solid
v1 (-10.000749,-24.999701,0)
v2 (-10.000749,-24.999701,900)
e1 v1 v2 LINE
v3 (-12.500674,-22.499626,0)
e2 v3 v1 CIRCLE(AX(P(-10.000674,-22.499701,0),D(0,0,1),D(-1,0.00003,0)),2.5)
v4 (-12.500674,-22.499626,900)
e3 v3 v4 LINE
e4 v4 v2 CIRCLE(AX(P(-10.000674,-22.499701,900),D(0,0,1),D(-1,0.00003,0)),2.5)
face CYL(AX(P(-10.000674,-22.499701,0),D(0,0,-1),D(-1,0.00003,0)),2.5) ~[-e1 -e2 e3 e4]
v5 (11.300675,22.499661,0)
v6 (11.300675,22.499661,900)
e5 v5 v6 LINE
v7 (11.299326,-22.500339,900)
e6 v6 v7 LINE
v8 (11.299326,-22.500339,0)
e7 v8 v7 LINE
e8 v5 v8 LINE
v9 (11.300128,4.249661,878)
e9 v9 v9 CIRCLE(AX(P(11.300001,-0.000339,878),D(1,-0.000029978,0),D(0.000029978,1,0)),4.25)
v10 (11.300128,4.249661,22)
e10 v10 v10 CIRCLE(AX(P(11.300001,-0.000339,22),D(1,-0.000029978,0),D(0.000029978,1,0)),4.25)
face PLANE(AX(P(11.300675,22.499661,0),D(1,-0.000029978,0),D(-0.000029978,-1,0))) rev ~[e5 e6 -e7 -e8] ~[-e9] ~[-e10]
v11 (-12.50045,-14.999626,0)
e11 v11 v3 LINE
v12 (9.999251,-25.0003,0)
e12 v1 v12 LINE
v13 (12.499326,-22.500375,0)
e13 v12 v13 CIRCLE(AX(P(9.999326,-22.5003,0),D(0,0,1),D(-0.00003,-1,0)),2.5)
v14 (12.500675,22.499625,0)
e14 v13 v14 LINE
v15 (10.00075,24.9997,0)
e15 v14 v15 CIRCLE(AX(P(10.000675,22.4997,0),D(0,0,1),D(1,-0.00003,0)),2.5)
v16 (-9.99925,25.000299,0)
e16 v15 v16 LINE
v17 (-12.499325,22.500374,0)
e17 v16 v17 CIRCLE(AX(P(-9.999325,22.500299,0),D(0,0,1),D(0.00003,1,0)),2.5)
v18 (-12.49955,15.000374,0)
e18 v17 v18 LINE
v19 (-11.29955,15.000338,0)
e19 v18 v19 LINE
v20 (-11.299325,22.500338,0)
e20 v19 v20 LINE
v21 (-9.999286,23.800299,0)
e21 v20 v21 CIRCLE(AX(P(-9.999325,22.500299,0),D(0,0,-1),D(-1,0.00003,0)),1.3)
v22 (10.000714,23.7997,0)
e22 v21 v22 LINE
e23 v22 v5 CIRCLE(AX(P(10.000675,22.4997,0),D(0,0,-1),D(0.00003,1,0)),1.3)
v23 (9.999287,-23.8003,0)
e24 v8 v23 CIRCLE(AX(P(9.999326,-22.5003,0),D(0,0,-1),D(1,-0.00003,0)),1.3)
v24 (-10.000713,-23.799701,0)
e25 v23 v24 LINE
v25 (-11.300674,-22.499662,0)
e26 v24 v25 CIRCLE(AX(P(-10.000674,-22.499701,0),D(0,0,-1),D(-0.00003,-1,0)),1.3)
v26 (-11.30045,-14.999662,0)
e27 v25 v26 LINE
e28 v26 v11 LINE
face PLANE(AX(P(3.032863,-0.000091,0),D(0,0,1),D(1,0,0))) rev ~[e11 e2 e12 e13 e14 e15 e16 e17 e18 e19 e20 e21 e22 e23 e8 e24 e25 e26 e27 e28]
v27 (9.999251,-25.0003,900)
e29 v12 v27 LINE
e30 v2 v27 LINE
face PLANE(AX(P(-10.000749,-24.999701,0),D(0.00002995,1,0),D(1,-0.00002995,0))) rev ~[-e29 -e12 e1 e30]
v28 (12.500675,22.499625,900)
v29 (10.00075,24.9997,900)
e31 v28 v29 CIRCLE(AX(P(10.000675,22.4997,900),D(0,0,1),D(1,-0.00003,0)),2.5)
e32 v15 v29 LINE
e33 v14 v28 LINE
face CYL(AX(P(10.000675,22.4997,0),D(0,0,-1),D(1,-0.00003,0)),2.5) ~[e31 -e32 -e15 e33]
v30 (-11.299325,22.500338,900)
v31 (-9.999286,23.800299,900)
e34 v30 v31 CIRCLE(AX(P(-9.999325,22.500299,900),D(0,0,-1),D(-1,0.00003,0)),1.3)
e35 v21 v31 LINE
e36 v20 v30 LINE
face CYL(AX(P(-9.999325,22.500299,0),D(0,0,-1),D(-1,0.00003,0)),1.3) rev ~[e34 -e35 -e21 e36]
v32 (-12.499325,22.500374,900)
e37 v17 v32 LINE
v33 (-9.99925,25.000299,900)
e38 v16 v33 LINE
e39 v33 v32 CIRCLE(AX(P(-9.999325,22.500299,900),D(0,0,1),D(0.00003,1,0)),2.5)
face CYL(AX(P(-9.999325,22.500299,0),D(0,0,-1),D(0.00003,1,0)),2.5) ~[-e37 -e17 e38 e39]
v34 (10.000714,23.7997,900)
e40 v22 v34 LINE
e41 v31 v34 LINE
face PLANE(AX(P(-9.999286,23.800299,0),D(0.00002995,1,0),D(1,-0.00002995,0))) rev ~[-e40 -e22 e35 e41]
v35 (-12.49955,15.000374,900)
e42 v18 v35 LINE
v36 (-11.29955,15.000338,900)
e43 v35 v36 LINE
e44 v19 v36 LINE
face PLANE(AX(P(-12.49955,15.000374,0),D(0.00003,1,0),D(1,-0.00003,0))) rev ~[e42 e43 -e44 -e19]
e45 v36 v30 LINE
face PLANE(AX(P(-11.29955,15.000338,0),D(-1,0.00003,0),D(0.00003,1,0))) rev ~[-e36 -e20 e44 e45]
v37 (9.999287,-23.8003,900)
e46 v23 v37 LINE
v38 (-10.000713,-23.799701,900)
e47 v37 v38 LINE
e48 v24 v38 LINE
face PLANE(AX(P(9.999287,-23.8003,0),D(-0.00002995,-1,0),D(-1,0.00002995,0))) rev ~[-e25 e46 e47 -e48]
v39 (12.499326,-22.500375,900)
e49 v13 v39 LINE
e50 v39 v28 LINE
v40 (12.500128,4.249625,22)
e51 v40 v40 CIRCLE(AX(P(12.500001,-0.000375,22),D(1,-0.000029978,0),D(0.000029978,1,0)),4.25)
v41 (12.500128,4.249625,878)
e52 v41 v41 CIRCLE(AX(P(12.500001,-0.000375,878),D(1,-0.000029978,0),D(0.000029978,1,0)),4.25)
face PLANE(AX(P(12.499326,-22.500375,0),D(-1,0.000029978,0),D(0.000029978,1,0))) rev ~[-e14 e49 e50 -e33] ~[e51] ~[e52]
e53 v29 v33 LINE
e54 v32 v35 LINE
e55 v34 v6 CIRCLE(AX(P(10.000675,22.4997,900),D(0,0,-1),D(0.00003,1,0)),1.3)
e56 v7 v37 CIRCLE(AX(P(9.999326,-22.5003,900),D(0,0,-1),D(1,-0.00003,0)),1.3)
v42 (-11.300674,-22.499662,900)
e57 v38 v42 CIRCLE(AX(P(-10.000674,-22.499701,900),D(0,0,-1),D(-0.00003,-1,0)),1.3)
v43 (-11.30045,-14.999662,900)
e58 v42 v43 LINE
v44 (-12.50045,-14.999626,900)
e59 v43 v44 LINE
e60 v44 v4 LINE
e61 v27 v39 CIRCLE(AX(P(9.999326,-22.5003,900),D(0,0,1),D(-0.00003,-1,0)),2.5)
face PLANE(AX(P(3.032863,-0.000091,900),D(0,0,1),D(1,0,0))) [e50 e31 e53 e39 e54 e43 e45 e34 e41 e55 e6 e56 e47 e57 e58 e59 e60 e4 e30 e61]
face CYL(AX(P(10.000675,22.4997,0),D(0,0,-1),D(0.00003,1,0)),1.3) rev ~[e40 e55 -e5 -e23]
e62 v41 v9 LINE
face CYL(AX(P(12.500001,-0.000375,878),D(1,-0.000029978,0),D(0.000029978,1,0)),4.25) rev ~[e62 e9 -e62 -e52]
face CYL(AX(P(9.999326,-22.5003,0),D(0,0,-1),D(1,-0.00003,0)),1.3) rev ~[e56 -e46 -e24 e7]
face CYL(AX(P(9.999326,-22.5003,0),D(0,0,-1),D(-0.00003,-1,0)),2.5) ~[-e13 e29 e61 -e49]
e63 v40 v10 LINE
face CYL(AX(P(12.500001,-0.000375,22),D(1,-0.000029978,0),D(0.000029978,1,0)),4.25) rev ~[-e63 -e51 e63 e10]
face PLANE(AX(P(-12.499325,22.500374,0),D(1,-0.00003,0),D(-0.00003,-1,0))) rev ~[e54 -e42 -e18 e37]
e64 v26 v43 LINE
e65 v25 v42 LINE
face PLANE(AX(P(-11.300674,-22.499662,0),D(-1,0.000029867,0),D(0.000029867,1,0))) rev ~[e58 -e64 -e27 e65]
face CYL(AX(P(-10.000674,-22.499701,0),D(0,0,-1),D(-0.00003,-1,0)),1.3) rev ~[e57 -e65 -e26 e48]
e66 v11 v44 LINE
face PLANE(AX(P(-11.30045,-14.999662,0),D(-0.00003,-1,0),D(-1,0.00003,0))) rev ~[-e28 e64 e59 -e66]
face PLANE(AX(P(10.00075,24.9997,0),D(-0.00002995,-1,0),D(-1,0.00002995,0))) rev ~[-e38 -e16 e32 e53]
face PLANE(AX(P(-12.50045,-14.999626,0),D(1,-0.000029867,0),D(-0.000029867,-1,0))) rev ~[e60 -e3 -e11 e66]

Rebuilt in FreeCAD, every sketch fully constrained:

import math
import FreeCAD as App
import Part
import Sketcher

doc = App.newDocument("Part")
body = doc.addObject("PartDesign::Body", "Body")

# Sketch on XY plane
sketch1 = doc.addObject("Sketcher::SketchObject", "Sketch")
body.addObject(sketch1)
sketch1.AttachmentSupport = (doc.XY_Plane, [""])
sketch1.MapMode = "FlatFace"
sketch1.addGeometry([
    Part.ArcOfCircle(Part.Circle(App.Vector(10.000675, 22.4997, 0), App.Vector(0, 0, 1), 2.5), math.radians(-0.001719), math.radians(89.998281)),  # 0
    Part.LineSegment(App.Vector(10.00075, 24.9997, 0), App.Vector(-9.99925, 25.000299, 0)),  # 1
    Part.ArcOfCircle(Part.Circle(App.Vector(-9.999325, 22.500299, 0), App.Vector(0, 0, 1), 2.5), math.radians(89.998281), math.radians(179.998281)),  # 2
    Part.LineSegment(App.Vector(-12.499325, 22.500374, 0), App.Vector(-12.49955, 15.000374, 0)),  # 3
    Part.LineSegment(App.Vector(-12.49955, 15.000374, 0), App.Vector(-11.29955, 15.000338, 0)),  # 4
    Part.LineSegment(App.Vector(-11.29955, 15.000338, 0), App.Vector(-11.299325, 22.500338, 0)),  # 5
    Part.ArcOfCircle(Part.Circle(App.Vector(-9.999325, 22.500299, 0), App.Vector(0, 0, 1), 1.3), math.radians(89.998281), math.radians(179.998281)),  # 6
    Part.LineSegment(App.Vector(-9.999286, 23.800299, 0), App.Vector(10.000714, 23.7997, 0)),  # 7
    Part.ArcOfCircle(Part.Circle(App.Vector(10.000675, 22.4997, 0), App.Vector(0, 0, 1), 1.3), math.radians(-0.001719), math.radians(89.998281)),  # 8
    Part.LineSegment(App.Vector(11.300675, 22.499661, 0), App.Vector(11.299326, -22.500339, 0)),  # 9
    Part.ArcOfCircle(Part.Circle(App.Vector(9.999326, -22.5003, 0), App.Vector(0, 0, 1), 1.3), math.radians(-90.001719), math.radians(-0.001719)),  # 10
    Part.LineSegment(App.Vector(9.999287, -23.8003, 0), App.Vector(-10.000713, -23.799701, 0)),  # 11
    Part.ArcOfCircle(Part.Circle(App.Vector(-10.000674, -22.499701, 0), App.Vector(0, 0, 1), 1.3), math.radians(179.998281), math.radians(269.998281)),  # 12
    Part.LineSegment(App.Vector(-11.300674, -22.499662, 0), App.Vector(-11.30045, -14.999662, 0)),  # 13
    Part.LineSegment(App.Vector(-11.30045, -14.999662, 0), App.Vector(-12.50045, -14.999626, 0)),  # 14
    Part.LineSegment(App.Vector(-12.50045, -14.999626, 0), App.Vector(-12.500674, -22.499626, 0)),  # 15
    Part.ArcOfCircle(Part.Circle(App.Vector(-10.000674, -22.499701, 0), App.Vector(0, 0, 1), 2.5), math.radians(179.998281), math.radians(269.998281)),  # 16
    Part.LineSegment(App.Vector(-10.000749, -24.999701, 0), App.Vector(9.999251, -25.0003, 0)),  # 17
    Part.ArcOfCircle(Part.Circle(App.Vector(9.999326, -22.5003, 0), App.Vector(0, 0, 1), 2.5), math.radians(-90.001719), math.radians(-0.001719)),  # 18
    Part.LineSegment(App.Vector(12.499326, -22.500375, 0), App.Vector(12.500675, 22.499625, 0)),  # 19
], False)
sketch1.addConstraint([
    Sketcher.Constraint("Tangent", 0, 2, 1, 1),
    Sketcher.Constraint("Tangent", 1, 2, 2, 1),
    Sketcher.Constraint("Tangent", 2, 2, 3, 1),
    Sketcher.Constraint("Coincident", 3, 2, 4, 1),
    Sketcher.Constraint("Coincident", 4, 2, 5, 1),
    Sketcher.Constraint("Tangent", 5, 2, 6, 2),
    Sketcher.Constraint("Tangent", 6, 1, 7, 1),
    Sketcher.Constraint("Tangent", 7, 2, 8, 2),
    Sketcher.Constraint("Tangent", 8, 1, 9, 1),
    Sketcher.Constraint("Tangent", 9, 2, 10, 2),
    Sketcher.Constraint("Tangent", 10, 1, 11, 1),
    Sketcher.Constraint("Tangent", 11, 2, 12, 2),
    Sketcher.Constraint("Tangent", 12, 1, 13, 1),
    Sketcher.Constraint("Coincident", 13, 2, 14, 1),
    Sketcher.Constraint("Coincident", 14, 2, 15, 1),
    Sketcher.Constraint("Tangent", 15, 2, 16, 1),
    Sketcher.Constraint("Tangent", 16, 2, 17, 1),
    Sketcher.Constraint("Tangent", 17, 2, 18, 1),
    Sketcher.Constraint("Tangent", 18, 2, 19, 1),
    Sketcher.Constraint("Tangent", 19, 2, 0, 1),
    Sketcher.Constraint("Coincident", 6, 3, 2, 3),
    Sketcher.Constraint("Coincident", 8, 3, 0, 3),
    Sketcher.Constraint("Coincident", 16, 3, 12, 3),
    Sketcher.Constraint("Coincident", 18, 3, 10, 3),
    Sketcher.Constraint("Equal", 0, 2),
    Sketcher.Constraint("Equal", 6, 8),
    Sketcher.Constraint("Equal", 8, 10),
    Sketcher.Constraint("Equal", 10, 12),
    Sketcher.Constraint("Equal", 2, 16),
    Sketcher.Constraint("Equal", 16, 18),
    Sketcher.Constraint("Symmetric", 2, 3, 10, 3, -1, 1),
    Sketcher.Constraint("Symmetric", 0, 3, 12, 3, -1, 1),
    Sketcher.Constraint("Perpendicular", 1, 3),
    Sketcher.Constraint("Perpendicular", 3, 4),
    Sketcher.Constraint("Perpendicular", 4, 5),
    Sketcher.Constraint("Perpendicular", 7, 9),
    Sketcher.Constraint("Perpendicular", 11, 13),
    Sketcher.Constraint("Perpendicular", 13, 14),
    Sketcher.Constraint("Perpendicular", 14, 15),
    Sketcher.Constraint("Equal", 5, 13),
    Sketcher.Constraint("Radius", 0, 2.5),
    Sketcher.Constraint("Radius", 6, 1.3),
    Sketcher.Constraint("Distance", 1, 20.0),
    Sketcher.Constraint("Distance", 9, 45.0),
    Sketcher.Constraint("Distance", 3, 7.5),
    Sketcher.Constraint("DistanceY", -1, 1, 0, 3, 22.4997),
])
pad1 = doc.addObject("PartDesign::Pad", "Pad")
body.addObject(pad1)
pad1.Profile = sketch1
pad1.Length = 900

# Sketch on YZ plane
sketch2 = doc.addObject("Sketcher::SketchObject", "Sketch001")
body.addObject(sketch2)
sketch2.AttachmentSupport = (doc.YZ_Plane, [""])
sketch2.MapMode = "FlatFace"
sketch2.AttachmentOffset = App.Placement(App.Vector(0, 0, 12.500001), App.Rotation())
sketch2.addGeometry([
    Part.Circle(App.Vector(-0.000375, 22, 0), App.Vector(0, 0, 1), 4.25),
    Part.Circle(App.Vector(-0.000375, 878.000001, 0), App.Vector(0, 0, 1), 4.25),
], False)
sketch2.addConstraint([
    Sketcher.Constraint("Equal", 0, 1),
    Sketcher.Constraint("Vertical", 0, 3, 1, 3),
    Sketcher.Constraint("Diameter", 0, 8.5),
    Sketcher.Constraint("DistanceY", -1, 1, 0, 3, 22.0),
    Sketcher.Constraint("DistanceY", -1, 1, 1, 3, 878.000001),
    Sketcher.Constraint("DistanceX", 0, 3, -1, 1, 0.000375),
])
pocket1 = doc.addObject("PartDesign::Pocket", "Pocket")
body.addObject(pocket1)
pocket1.Profile = sketch2
pocket1.Type = "ThroughAll"

doc.recompute()
